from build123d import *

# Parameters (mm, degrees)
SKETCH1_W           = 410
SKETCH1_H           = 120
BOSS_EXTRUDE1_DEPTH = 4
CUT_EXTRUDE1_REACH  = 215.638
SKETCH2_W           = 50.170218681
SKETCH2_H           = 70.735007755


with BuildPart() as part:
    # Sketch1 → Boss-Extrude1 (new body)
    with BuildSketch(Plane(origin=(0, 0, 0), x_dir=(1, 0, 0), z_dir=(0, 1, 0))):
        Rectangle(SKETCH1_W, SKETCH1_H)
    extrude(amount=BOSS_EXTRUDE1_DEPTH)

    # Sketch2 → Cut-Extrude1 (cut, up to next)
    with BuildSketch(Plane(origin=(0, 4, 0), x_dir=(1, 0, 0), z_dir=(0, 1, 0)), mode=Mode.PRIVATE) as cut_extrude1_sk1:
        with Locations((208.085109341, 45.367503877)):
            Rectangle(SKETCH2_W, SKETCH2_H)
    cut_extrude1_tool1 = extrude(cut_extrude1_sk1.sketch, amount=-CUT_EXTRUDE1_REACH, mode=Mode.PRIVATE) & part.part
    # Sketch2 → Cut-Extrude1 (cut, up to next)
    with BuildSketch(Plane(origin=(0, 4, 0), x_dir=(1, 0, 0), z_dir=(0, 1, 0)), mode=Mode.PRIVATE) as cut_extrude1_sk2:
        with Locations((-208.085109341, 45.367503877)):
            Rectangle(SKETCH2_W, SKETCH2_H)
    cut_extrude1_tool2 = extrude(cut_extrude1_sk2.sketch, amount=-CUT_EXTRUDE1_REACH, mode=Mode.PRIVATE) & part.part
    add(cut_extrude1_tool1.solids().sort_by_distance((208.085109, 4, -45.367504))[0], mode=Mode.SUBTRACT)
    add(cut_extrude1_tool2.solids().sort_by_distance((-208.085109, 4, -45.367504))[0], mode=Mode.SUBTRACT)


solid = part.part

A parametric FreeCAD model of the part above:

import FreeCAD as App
import Part
import Sketcher


def add_polygon(sketch, points):
    """Adds a closed chain of lines whose ends are joined by coincident constraints."""
    first, n = sketch.GeometryCount, len(points)
    for a, b in zip(points, points[1:] + points[:1]):
        sketch.addGeometry(Part.LineSegment(App.Vector(*a, 0), App.Vector(*b, 0)), False)
    for i in range(n):
        sketch.addConstraint(Sketcher.Constraint("Coincident", first + i, 2, first + (i + 1) % n, 1))

doc = App.newDocument("Part")
params = doc.addObject("Spreadsheet::Sheet", "Params")
for row, (alias, value) in enumerate([
    ("sketch1_width", "410 mm"),
    ("sketch1_height", "120 mm"),
    ("pad1_length", "4 mm"),
    ("pocket1_length", "4 mm"),
    ("pocket2_length", "4 mm"),
], start=1):
    params.set(f"A{row}", alias)
    params.set(f"B{row}", "=" + value)
    params.setAlias(f"B{row}", alias)

body = doc.addObject("PartDesign::Body", "Body")

sketch1 = doc.addObject("Sketcher::SketchObject", "Sketch")
body.addObject(sketch1)
sketch1.AttachmentSupport = (doc.XZ_Plane, [""])
sketch1.MapMode = "FlatFace"
add_polygon(sketch1, [(-205, -60), (-205, 60), (205, 60), (205, -60)])
sketch1.addConstraint([
    Sketcher.Constraint("Vertical", 0),
    Sketcher.Constraint("Horizontal", 1),
    Sketcher.Constraint("Vertical", 2),
    Sketcher.Constraint("Horizontal", 3),
    Sketcher.Constraint("Symmetric", 0, 2, 2, 2, -1, 1),
    Sketcher.Constraint("DistanceX", 1, 1, 1, 2, 410.0),
    Sketcher.Constraint("DistanceY", 0, 1, 0, 2, 120.0),
])
sketch1.setExpression("Constraints[9]", "Params.sketch1_width")
sketch1.setExpression("Constraints[10]", "Params.sketch1_height")
pad1 = doc.addObject("PartDesign::Pad", "Pad")
body.addObject(pad1)
pad1.Profile = sketch1
pad1.setExpression("Length", "Params.pad1_length")
pad1.Reversed = True

sketch2 = doc.addObject("Sketcher::SketchObject", "Sketch001")
body.addObject(sketch2)
sketch2.AttachmentSupport = (doc.XZ_Plane, [""])
sketch2.MapMode = "FlatFace"
sketch2.AttachmentOffset = App.Placement(App.Vector(0, 0, -4), App.Rotation())
add_polygon(sketch2, [(183, -81), (183, -10), (233, -10), (233, -81)])
sketch2.addConstraint([
    Sketcher.Constraint("Vertical", 0),
    Sketcher.Constraint("Horizontal", 1),
    Sketcher.Constraint("Vertical", 2),
    Sketcher.Constraint("Horizontal", 3),
    Sketcher.Constraint("DistanceX", -1, 1, 0, 2, 183.0),
    Sketcher.Constraint("DistanceY", 0, 2, -1, 1, 10.0),
    Sketcher.Constraint("DistanceX", 1, 1, 1, 2, 50.170219),
    Sketcher.Constraint("DistanceY", 0, 1, 0, 2, 70.735008),
])
pocket1 = doc.addObject("PartDesign::Pocket", "Pocket")
body.addObject(pocket1)
pocket1.Profile = sketch2
pocket1.setExpression("Length", "Params.pocket1_length")
pocket1.Reversed = True

sketch3 = doc.addObject("Sketcher::SketchObject", "Sketch002")
body.addObject(sketch3)
sketch3.AttachmentSupport = (doc.XZ_Plane, [""])
sketch3.MapMode = "FlatFace"
sketch3.AttachmentOffset = App.Placement(App.Vector(0, 0, -4), App.Rotation())
add_polygon(sketch3, [(-233, -81), (-233, -10), (-183, -10), (-183, -81)])
sketch3.addConstraint([
    Sketcher.Constraint("Vertical", 0),
    Sketcher.Constraint("Horizontal", 1),
    Sketcher.Constraint("Vertical", 2),
    Sketcher.Constraint("Horizontal", 3),
    Sketcher.Constraint("DistanceY", 0, 2, -1, 1, 10.0),
    Sketcher.Constraint("DistanceX", 1, 2, -1, 1, 183.0),
    Sketcher.Constraint("DistanceX", 1, 1, 1, 2, 50.170219),
    Sketcher.Constraint("DistanceY", 0, 1, 0, 2, 70.735008),
])
pocket2 = doc.addObject("PartDesign::Pocket", "Pocket001")
body.addObject(pocket2)
pocket2.Profile = sketch3
pocket2.setExpression("Length", "Params.pocket2_length")
pocket2.Reversed = True

doc.recompute()
